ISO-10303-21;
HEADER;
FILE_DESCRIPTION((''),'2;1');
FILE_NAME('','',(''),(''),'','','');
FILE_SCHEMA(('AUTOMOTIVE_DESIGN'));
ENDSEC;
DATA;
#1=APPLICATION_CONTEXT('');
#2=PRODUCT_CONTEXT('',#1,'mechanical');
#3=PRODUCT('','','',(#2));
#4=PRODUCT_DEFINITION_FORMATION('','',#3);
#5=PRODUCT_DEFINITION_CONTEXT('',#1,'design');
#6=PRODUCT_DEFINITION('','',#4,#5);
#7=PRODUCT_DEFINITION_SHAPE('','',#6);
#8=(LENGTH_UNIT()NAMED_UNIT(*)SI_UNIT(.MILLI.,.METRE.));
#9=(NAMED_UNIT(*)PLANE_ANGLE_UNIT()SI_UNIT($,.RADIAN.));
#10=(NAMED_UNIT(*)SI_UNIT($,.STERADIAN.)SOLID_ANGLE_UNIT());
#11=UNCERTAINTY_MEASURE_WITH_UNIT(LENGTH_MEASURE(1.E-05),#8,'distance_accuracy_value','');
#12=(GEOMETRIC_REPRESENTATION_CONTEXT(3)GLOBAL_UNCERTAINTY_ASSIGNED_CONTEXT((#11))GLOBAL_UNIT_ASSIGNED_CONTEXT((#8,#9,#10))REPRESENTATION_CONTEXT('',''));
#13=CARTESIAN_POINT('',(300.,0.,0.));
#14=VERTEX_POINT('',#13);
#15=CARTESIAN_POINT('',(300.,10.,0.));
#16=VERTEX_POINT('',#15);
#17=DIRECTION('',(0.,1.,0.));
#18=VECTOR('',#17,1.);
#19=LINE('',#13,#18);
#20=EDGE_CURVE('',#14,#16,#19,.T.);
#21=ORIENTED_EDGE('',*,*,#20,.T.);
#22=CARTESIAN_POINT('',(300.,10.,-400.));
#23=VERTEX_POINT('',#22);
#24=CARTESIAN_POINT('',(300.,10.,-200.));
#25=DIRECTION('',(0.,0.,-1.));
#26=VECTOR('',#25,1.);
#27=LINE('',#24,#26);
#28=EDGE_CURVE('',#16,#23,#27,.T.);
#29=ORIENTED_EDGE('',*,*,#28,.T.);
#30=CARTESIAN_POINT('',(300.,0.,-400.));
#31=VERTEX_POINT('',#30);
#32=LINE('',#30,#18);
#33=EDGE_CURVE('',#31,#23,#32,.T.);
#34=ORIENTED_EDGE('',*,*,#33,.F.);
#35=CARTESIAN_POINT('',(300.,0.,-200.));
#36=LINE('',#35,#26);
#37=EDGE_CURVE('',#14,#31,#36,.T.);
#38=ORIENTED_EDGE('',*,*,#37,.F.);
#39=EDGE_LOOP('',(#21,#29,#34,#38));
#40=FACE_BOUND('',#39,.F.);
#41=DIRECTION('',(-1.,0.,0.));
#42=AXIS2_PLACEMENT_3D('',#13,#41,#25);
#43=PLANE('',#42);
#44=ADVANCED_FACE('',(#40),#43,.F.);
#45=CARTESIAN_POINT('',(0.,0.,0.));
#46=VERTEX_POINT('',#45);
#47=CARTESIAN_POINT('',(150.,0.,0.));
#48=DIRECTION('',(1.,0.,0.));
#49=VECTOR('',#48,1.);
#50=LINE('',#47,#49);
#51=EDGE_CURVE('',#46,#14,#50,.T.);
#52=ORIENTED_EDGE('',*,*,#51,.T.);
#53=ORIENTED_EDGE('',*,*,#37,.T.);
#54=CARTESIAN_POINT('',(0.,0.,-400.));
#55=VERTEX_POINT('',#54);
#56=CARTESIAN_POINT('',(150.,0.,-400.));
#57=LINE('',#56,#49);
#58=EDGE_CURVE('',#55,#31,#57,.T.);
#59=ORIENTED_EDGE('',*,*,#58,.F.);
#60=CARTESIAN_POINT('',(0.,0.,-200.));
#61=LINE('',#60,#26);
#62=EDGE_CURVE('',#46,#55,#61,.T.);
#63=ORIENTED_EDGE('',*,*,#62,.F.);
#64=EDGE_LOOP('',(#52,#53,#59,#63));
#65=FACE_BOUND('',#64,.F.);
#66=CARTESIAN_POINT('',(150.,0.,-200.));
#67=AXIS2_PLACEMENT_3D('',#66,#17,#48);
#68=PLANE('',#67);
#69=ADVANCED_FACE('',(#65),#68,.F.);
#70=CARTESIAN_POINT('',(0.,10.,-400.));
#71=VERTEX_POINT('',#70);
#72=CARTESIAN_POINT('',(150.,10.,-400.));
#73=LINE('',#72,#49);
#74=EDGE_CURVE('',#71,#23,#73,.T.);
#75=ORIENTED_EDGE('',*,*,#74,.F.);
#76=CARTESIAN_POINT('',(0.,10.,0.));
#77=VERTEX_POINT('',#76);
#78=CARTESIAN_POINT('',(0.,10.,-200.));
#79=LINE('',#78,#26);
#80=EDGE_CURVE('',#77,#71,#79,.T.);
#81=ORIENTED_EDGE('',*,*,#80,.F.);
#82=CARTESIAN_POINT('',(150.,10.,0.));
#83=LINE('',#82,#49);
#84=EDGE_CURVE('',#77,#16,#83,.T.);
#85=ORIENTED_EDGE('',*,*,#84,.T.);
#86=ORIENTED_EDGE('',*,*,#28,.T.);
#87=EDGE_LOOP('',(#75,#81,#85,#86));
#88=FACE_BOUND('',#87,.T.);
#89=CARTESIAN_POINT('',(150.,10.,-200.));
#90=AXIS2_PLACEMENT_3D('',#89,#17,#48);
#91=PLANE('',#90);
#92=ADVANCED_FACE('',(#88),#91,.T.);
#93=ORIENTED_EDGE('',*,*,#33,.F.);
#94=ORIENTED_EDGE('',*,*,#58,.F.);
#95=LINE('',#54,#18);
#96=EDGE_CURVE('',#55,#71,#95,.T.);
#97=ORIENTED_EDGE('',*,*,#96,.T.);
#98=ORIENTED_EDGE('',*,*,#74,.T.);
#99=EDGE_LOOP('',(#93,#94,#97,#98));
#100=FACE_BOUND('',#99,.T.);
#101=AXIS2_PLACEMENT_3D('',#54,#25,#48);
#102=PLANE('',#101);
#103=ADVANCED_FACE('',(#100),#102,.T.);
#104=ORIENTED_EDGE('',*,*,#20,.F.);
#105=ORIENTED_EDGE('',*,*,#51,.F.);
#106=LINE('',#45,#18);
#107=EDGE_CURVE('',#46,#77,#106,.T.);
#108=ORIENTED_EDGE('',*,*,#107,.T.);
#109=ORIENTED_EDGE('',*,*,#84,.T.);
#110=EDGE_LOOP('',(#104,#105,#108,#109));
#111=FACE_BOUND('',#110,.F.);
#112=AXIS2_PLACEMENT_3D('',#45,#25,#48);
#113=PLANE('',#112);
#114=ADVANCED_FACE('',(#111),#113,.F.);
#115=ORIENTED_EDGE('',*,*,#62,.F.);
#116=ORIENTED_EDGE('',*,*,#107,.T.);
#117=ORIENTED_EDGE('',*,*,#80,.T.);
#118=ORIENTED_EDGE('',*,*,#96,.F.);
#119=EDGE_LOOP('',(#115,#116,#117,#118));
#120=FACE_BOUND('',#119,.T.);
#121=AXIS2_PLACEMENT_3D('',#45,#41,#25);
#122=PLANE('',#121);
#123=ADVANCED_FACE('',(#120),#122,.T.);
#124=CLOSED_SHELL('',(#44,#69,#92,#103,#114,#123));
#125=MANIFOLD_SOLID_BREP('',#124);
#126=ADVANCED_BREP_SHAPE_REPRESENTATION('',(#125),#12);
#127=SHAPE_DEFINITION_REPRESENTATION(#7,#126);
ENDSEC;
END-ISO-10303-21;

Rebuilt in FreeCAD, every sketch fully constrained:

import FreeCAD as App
import Part
import Sketcher
from FreeCAD import Vector
Q = App.Units.Quantity


def add_polygon(sketch, points):
    """Adds a closed chain of lines whose ends are joined by coincident constraints."""
    first, n = sketch.GeometryCount, len(points)
    for a, b in zip(points, points[1:] + points[:1]):
        sketch.addGeometry(Part.LineSegment(App.Vector(*a, 0), App.Vector(*b, 0)), False)
    for i in range(n):
        sketch.addConstraint(Sketcher.Constraint("Coincident", first + i, 2, first + (i + 1) % n, 1))

doc = App.newDocument("Part")
body = doc.addObject("PartDesign::Body", "Body")

# Sketch on XZ plane
sketch1 = body.newObject("Sketcher::SketchObject", "Sketch")
sketch1.AttachmentSupport = (doc.getObject("XZ_Plane"), [""])
sketch1.MapMode = "FlatFace"
add_polygon(sketch1, [(0, -400), (0, 0), (300, 0), (300, -400)])  # lines 0-3
sketch1.addConstraint(Sketcher.Constraint("Vertical", 0))
sketch1.addConstraint(Sketcher.Constraint("Horizontal", 1))
sketch1.addConstraint(Sketcher.Constraint("Vertical", 2))
sketch1.addConstraint(Sketcher.Constraint("Horizontal", 3))
sketch1.addConstraint(Sketcher.Constraint("Coincident", 0, 2, -1, 1))
sketch1.addConstraint(Sketcher.Constraint("DistanceX", 1, 1, 1, 2, Q("300 mm")))
sketch1.addConstraint(Sketcher.Constraint("DistanceY", 0, 1, 0, 2, Q("400 mm")))
pad1 = body.newObject("PartDesign::Pad", "Pad")
pad1.Profile = sketch1
pad1.Length = 10
pad1.Reversed = True

doc.recompute()
